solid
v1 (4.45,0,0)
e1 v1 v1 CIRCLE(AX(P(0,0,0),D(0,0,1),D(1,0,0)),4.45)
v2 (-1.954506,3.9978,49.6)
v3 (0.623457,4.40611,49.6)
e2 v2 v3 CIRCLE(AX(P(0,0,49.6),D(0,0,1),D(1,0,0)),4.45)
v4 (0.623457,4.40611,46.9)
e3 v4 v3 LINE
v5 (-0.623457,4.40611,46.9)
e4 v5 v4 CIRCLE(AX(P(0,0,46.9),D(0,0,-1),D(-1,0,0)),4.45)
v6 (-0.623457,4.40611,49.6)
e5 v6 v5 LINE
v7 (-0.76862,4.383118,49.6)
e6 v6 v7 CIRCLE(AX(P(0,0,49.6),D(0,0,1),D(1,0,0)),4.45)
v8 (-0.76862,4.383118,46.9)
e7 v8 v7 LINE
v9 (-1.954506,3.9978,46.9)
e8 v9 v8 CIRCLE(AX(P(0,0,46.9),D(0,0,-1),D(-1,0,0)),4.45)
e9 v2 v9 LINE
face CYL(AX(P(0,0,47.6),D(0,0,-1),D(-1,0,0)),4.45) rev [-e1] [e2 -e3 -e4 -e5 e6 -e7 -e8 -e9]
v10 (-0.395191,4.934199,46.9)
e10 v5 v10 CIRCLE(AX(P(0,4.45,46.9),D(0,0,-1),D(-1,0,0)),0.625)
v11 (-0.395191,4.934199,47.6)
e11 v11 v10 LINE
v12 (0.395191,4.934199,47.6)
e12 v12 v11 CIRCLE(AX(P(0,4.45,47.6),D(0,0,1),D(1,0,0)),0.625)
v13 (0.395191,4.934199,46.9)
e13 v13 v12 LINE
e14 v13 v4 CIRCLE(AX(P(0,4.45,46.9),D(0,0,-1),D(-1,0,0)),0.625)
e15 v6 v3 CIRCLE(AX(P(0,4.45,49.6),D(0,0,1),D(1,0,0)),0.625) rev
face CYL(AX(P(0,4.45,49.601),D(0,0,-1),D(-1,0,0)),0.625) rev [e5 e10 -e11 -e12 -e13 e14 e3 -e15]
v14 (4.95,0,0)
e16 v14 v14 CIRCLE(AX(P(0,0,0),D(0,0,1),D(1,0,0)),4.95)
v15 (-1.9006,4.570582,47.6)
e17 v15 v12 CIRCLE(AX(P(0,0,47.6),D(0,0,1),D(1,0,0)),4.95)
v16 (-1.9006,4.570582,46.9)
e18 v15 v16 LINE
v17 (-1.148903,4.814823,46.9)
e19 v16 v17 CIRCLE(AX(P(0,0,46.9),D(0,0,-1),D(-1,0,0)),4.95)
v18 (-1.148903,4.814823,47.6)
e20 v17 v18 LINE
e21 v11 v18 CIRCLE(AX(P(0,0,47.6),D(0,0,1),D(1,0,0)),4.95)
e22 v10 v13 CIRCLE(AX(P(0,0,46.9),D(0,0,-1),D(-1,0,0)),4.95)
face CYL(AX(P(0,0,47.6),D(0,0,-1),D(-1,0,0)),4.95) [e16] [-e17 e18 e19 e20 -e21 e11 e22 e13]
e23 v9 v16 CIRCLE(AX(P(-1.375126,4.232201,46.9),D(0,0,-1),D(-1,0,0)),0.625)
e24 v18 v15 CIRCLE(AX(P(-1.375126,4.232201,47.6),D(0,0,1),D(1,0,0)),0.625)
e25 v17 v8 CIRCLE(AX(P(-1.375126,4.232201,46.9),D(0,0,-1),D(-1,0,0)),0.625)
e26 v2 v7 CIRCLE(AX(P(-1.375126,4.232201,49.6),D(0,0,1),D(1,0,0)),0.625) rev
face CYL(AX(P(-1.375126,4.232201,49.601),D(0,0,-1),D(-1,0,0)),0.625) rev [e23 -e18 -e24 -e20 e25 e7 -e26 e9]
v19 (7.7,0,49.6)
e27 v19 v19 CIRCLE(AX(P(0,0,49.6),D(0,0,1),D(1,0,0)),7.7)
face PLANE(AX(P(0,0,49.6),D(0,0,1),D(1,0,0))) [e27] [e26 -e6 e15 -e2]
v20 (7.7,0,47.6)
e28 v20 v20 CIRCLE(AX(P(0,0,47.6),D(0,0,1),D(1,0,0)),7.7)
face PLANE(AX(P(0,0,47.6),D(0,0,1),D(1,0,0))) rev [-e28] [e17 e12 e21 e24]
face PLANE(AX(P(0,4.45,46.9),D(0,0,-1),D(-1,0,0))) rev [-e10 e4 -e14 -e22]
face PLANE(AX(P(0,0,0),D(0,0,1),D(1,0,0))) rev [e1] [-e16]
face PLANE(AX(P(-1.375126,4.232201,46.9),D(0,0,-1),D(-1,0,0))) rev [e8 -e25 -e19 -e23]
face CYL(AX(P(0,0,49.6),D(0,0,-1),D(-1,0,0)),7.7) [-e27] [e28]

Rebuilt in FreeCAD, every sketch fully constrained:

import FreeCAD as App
import Part
import Sketcher

doc = App.newDocument("Part")
body = doc.addObject("PartDesign::Body", "Body")

# Sketch on XY plane
sketch1 = doc.addObject("Sketcher::SketchObject", "Sketch")
body.addObject(sketch1)
sketch1.AttachmentSupport = (doc.XY_Plane, [""])
sketch1.MapMode = "FlatFace"
sketch1.addGeometry(Part.Circle(App.Vector(0, 0, 0), App.Vector(0, 0, 1), 5), False)
sketch1.addGeometry(Part.Circle(App.Vector(0, 0, 0), App.Vector(0, 0, 1), 4.5), False)
sketch1.addConstraint(Sketcher.Constraint("Coincident", 0, 3, -1, 1))
sketch1.addConstraint(Sketcher.Constraint("Coincident", 1, 3, -1, 1))
sketch1.addConstraint(Sketcher.Constraint("Diameter", 0, 9.9))
sketch1.addConstraint(Sketcher.Constraint("Diameter", 1, 8.9))
pad1 = doc.addObject("PartDesign::Pad", "Pad")
body.addObject(pad1)
pad1.Profile = sketch1
pad1.Length = 47.6

# Sketch on XY plane
sketch2 = doc.addObject("Sketcher::SketchObject", "Sketch001")
body.addObject(sketch2)
sketch2.AttachmentSupport = (doc.XY_Plane, [""])
sketch2.MapMode = "FlatFace"
sketch2.AttachmentOffset = App.Placement(App.Vector(0, 0, 47.6), App.Rotation())
sketch2.addGeometry(Part.Circle(App.Vector(0, 0, 0), App.Vector(0, 0, 1), 7.7), False)
sketch2.addGeometry(Part.Circle(App.Vector(0, 0, 0), App.Vector(0, 0, 1), 4.5), False)
sketch2.addConstraint(Sketcher.Constraint("Coincident", 0, 3, -1, 1))
sketch2.addConstraint(Sketcher.Constraint("Coincident", 1, 3, -1, 1))
sketch2.addConstraint(Sketcher.Constraint("Diameter", 0, 15.4))
sketch2.addConstraint(Sketcher.Constraint("Diameter", 1, 8.9))
pad2 = doc.addObject("PartDesign::Pad", "Pad001")
body.addObject(pad2)
pad2.Profile = sketch2
pad2.Length = 2

# Sketch on XY plane
sketch3 = doc.addObject("Sketcher::SketchObject", "Sketch002")
body.addObject(sketch3)
sketch3.AttachmentSupport = (doc.XY_Plane, [""])
sketch3.MapMode = "FlatFace"
sketch3.AttachmentOffset = App.Placement(App.Vector(0, 0, 47.6), App.Rotation())
sketch3.addGeometry(Part.Circle(App.Vector(0, 4.5, 0), App.Vector(0, 0, 1), 0.6), False)
sketch3.addGeometry(Part.Circle(App.Vector(-1.4, 4.2, 0), App.Vector(0, 0, 1), 0.6), False)
sketch3.addConstraint(Sketcher.Constraint("Equal", 0, 1))
sketch3.addConstraint(Sketcher.Constraint("PointOnObject", 0, 3, -2))
sketch3.addConstraint(Sketcher.Constraint("Diameter", 0, 1.25))
sketch3.addConstraint(Sketcher.Constraint("DistanceY", -1, 1, 0, 3, 4.45))
sketch3.addConstraint(Sketcher.Constraint("DistanceY", -1, 1, 1, 3, 4.232201))
sketch3.addConstraint(Sketcher.Constraint("DistanceX", 1, 3, -1, 1, 1.375126))
pocket1 = doc.addObject("PartDesign::Pocket", "Pocket")
body.addObject(pocket1)
pocket1.Profile = sketch3
pocket1.Length = 0.7

# Sketch on XY plane
sketch4 = doc.addObject("Sketcher::SketchObject", "Sketch003")
body.addObject(sketch4)
sketch4.AttachmentSupport = (doc.XY_Plane, [""])
sketch4.MapMode = "FlatFace"
sketch4.AttachmentOffset = App.Placement(App.Vector(0, 0, 47.6), App.Rotation())
sketch4.addGeometry(Part.Circle(App.Vector(0, 4.5, 0), App.Vector(0, 0, 1), 0.6), False)
sketch4.addConstraint(Sketcher.Constraint("PointOnObject", 0, 3, -2))
sketch4.addConstraint(Sketcher.Constraint("Diameter", 0, 1.25))
sketch4.addConstraint(Sketcher.Constraint("DistanceY", -1, 1, 0, 3, 4.45))
pocket2 = doc.addObject("PartDesign::Pocket", "Pocket001")
body.addObject(pocket2)
pocket2.Profile = sketch4
pocket2.Type = "UpToFirst"
pocket2.Reversed = True

# Sketch on XY plane
sketch5 = doc.addObject("Sketcher::SketchObject", "Sketch004")
body.addObject(sketch5)
sketch5.AttachmentSupport = (doc.XY_Plane, [""])
sketch5.MapMode = "FlatFace"
sketch5.AttachmentOffset = App.Placement(App.Vector(0, 0, 47.6), App.Rotation())
sketch5.addGeometry(Part.Circle(App.Vector(-1.4, 4.2, 0), App.Vector(0, 0, 1), 0.6), False)
sketch5.addConstraint(Sketcher.Constraint("Diameter", 0, 1.25))
sketch5.addConstraint(Sketcher.Constraint("DistanceY", -1, 1, 0, 3, 4.232201))
sketch5.addConstraint(Sketcher.Constraint("DistanceX", 0, 3, -1, 1, 1.375126))
pocket3 = doc.addObject("PartDesign::Pocket", "Pocket002")
body.addObject(pocket3)
pocket3.Profile = sketch5
pocket3.Length = 2
pocket3.Reversed = True

doc.recompute()
